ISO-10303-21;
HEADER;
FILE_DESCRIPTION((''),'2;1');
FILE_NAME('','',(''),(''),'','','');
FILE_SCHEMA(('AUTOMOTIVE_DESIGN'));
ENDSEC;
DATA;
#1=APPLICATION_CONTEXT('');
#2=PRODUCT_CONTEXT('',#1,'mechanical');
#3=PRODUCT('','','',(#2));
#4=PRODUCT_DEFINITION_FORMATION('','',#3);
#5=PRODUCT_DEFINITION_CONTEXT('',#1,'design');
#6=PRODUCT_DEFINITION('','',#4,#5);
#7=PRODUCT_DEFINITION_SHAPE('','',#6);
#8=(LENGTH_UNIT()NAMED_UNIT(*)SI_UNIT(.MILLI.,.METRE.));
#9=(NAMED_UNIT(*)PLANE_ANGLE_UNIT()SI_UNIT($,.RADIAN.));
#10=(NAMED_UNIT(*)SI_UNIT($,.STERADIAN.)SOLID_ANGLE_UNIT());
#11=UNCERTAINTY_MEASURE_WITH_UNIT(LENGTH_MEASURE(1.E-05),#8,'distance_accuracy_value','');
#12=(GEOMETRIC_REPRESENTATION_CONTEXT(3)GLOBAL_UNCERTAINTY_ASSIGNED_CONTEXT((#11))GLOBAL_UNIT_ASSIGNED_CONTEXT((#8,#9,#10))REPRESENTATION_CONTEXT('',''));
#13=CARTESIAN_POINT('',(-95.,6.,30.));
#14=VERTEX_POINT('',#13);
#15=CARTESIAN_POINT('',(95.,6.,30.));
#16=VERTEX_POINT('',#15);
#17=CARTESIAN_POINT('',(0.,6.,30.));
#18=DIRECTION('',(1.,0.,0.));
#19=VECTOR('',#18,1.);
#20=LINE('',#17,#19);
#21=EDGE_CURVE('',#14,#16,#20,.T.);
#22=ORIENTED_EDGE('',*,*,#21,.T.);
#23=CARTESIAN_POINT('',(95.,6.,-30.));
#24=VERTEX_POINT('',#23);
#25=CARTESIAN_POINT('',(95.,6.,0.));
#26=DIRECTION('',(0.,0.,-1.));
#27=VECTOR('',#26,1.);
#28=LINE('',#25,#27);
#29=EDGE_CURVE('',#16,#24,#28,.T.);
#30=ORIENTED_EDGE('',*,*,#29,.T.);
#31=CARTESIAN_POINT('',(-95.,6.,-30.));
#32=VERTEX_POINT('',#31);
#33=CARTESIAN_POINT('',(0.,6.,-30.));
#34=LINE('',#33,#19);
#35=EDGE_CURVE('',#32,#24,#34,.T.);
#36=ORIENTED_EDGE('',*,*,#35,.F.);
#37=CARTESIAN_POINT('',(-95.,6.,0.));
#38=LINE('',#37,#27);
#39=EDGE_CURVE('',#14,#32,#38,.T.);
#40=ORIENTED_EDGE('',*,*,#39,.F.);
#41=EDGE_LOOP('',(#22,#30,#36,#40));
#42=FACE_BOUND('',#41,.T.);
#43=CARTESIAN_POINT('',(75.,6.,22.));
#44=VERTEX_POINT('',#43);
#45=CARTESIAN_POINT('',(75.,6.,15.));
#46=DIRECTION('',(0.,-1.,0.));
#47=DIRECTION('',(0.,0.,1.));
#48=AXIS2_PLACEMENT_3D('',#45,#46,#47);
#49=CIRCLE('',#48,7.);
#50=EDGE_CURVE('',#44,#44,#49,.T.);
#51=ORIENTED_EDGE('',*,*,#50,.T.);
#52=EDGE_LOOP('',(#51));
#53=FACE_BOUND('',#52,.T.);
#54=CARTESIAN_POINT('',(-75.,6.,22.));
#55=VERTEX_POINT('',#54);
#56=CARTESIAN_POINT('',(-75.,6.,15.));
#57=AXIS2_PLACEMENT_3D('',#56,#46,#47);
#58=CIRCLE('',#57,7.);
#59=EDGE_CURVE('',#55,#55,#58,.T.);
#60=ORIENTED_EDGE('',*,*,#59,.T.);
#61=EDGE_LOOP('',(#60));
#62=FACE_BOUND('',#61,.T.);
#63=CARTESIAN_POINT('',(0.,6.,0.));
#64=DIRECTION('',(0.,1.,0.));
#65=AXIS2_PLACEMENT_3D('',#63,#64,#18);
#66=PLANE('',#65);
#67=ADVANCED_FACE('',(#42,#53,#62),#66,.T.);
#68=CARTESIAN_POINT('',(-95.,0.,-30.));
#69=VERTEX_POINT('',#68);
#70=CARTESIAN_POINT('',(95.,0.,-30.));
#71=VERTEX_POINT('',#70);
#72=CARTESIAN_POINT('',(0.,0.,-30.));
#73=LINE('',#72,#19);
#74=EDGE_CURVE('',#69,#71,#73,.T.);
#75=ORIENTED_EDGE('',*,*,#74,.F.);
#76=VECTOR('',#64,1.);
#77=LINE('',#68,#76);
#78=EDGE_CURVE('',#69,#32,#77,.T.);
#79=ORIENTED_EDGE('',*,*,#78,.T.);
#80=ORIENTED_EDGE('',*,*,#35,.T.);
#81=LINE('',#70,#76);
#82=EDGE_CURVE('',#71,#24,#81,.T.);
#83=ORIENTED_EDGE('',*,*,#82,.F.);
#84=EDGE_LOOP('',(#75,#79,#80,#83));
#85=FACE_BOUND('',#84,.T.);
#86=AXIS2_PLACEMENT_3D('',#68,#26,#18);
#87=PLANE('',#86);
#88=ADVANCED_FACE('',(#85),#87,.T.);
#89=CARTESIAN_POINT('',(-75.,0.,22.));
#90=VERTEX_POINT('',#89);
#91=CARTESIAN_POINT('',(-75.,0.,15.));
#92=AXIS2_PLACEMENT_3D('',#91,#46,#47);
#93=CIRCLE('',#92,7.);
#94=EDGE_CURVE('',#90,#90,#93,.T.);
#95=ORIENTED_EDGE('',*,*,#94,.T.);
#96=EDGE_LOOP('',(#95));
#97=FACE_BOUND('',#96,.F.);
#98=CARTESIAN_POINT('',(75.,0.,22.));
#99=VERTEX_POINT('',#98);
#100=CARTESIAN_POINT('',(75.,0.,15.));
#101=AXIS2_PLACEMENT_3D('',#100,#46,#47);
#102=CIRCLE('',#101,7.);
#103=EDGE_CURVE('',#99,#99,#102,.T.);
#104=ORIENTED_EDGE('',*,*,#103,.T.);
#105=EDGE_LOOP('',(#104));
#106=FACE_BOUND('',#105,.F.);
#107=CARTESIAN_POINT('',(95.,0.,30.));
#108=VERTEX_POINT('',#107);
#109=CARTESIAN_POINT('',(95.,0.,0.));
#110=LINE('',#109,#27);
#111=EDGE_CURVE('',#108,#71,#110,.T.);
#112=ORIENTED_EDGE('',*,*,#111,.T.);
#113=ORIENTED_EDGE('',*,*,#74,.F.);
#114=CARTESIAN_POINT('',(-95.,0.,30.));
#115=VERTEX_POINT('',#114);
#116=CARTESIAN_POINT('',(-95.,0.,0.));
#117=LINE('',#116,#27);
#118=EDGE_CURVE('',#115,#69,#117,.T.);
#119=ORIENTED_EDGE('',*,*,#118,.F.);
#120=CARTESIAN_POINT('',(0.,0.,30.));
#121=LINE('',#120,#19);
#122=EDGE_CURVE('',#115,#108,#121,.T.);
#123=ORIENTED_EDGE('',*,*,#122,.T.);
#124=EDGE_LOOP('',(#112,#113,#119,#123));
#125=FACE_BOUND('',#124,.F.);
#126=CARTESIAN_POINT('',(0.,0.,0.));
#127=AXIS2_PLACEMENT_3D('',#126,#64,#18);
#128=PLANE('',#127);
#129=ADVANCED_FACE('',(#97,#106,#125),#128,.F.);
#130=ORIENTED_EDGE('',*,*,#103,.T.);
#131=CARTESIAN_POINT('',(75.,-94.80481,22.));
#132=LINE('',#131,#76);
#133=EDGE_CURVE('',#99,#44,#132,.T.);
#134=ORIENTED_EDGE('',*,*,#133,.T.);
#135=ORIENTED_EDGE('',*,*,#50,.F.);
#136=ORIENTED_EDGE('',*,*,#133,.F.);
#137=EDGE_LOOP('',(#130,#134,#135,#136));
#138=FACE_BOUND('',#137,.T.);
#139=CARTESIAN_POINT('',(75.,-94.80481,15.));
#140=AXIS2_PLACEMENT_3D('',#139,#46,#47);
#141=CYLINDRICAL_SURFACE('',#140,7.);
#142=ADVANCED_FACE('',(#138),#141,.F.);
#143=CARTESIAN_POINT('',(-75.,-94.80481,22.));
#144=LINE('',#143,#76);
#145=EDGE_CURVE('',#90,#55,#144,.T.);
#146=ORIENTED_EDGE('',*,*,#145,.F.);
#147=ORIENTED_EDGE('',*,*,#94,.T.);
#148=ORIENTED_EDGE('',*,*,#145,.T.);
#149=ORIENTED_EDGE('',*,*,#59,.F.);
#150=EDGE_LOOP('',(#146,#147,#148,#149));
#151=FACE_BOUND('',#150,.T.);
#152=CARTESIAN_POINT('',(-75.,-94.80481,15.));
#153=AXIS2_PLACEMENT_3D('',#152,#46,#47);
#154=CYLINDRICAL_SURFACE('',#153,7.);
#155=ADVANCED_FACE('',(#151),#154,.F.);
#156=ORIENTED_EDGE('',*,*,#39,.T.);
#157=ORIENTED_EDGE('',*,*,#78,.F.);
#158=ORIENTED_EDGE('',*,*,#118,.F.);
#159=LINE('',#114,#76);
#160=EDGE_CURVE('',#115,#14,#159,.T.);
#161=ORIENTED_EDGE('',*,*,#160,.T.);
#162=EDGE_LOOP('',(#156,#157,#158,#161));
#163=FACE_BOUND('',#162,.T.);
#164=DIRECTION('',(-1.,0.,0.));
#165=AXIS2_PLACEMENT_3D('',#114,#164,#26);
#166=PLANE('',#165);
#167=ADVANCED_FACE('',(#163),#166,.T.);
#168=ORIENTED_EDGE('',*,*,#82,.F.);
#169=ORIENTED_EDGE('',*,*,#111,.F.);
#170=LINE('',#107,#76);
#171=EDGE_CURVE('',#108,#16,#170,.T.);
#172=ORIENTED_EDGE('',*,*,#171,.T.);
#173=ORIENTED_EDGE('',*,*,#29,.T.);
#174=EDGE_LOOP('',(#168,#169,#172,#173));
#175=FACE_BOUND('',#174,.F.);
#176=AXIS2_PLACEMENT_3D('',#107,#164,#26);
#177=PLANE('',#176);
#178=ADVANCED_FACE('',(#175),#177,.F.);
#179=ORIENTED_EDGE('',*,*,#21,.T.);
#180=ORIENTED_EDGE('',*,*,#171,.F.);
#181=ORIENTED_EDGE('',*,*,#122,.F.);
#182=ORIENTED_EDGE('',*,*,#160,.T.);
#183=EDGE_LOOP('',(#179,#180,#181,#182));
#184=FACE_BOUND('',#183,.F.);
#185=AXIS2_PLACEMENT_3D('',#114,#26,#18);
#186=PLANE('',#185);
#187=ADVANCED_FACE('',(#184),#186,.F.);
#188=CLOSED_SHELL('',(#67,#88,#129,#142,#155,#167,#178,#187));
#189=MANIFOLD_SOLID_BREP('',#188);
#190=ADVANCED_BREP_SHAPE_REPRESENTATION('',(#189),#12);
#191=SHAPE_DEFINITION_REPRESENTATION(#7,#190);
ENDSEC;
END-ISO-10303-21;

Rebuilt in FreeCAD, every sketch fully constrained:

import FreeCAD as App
import Part
import Sketcher
Q = App.Units.Quantity


def add_polygon(sketch, points):
    """Adds a closed chain of lines whose ends are joined by coincident constraints."""
    first, n = sketch.GeometryCount, len(points)
    for a, b in zip(points, points[1:] + points[:1]):
        sketch.addGeometry(Part.LineSegment(App.Vector(*a, 0), App.Vector(*b, 0)), False)
    for i in range(n):
        sketch.addConstraint(Sketcher.Constraint("Coincident", first + i, 2, first + (i + 1) % n, 1))

doc = App.newDocument("Part")
params = doc.addObject("Spreadsheet::Sheet", "Params")
for row, (alias, value) in enumerate([
    ("sketch1_width", "190 mm"),
    ("sketch1_height", "60 mm"),
    ("pad1_length", "6 mm"),
    ("sketch2_diameter", "14 mm"),
], start=1):
    params.set(f"A{row}", alias)
    params.set(f"B{row}", "=" + value)
    params.setAlias(f"B{row}", alias)

body = doc.addObject("PartDesign::Body", "Body")

# Sketch on XZ plane
sketch1 = body.newObject("Sketcher::SketchObject", "Sketch")
sketch1.AttachmentSupport = (doc.getObject("XZ_Plane"), [""])
sketch1.MapMode = "FlatFace"
add_polygon(sketch1, [(-95, -30), (-95, 30), (95, 30), (95, -30)])  # lines 0-3
sketch1.addConstraint([
    Sketcher.Constraint("Vertical", 0),
    Sketcher.Constraint("Horizontal", 1),
    Sketcher.Constraint("Vertical", 2),
    Sketcher.Constraint("Horizontal", 3),
    Sketcher.Constraint("Symmetric", 0, 2, 2, 2, -1, 1),
    Sketcher.Constraint("DistanceX", 1, 1, 1, 2, Q("190 mm")),
    Sketcher.Constraint("DistanceY", 0, 1, 0, 2, Q("60 mm")),
])
sketch1.setExpression("Constraints[9]", "Params.sketch1_width")
sketch1.setExpression("Constraints[10]", "Params.sketch1_height")
pad1 = body.newObject("PartDesign::Pad", "Pad")
pad1.Profile = sketch1
pad1.setExpression("Length", "Params.pad1_length")
pad1.Reversed = True

# Sketch on XZ plane
sketch2 = body.newObject("Sketcher::SketchObject", "Sketch001")
sketch2.AttachmentSupport = (doc.getObject("XZ_Plane"), [""])
sketch2.MapMode = "FlatFace"
sketch2.AttachmentOffset = App.Placement(App.Vector(0, 0, -6), App.Rotation())
sketch2.addGeometry([
    Part.Circle(App.Vector(75, 15, 0), App.Vector(0, 0, 1), 7),
    Part.Circle(App.Vector(-75, 15, 0), App.Vector(0, 0, 1), 7),
], False)
sketch2.addConstraint([
    Sketcher.Constraint("Equal", 0, 1),
    Sketcher.Constraint("Symmetric", 0, 3, 1, 3, -2),
    Sketcher.Constraint("Diameter", 0, Q("14 mm")),
    Sketcher.Constraint("DistanceX", -1, 1, 0, 3, Q("75 mm")),
    Sketcher.Constraint("DistanceY", -1, 1, 0, 3, Q("15 mm")),
])
sketch2.setExpression("Constraints[2]", "Params.sketch2_diameter")
pocket1 = body.newObject("PartDesign::Pocket", "Pocket")
pocket1.Profile = sketch2
pocket1.Type = "ThroughAll"
pocket1.Midplane = True

doc.recompute()
